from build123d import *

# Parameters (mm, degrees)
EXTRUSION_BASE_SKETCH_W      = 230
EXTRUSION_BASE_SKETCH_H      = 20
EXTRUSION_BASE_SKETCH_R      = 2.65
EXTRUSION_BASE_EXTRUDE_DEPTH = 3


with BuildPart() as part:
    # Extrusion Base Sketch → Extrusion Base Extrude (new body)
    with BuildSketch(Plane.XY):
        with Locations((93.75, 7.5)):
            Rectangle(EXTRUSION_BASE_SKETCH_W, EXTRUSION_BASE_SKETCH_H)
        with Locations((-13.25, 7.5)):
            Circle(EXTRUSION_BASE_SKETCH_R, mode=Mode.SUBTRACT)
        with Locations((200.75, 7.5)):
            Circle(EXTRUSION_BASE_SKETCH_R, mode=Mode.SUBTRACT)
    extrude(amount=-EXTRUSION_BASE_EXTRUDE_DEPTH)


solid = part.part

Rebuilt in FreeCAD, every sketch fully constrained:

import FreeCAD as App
import Part
import Sketcher
from FreeCAD import Vector

doc = App.newDocument("Part")
body = doc.addObject("PartDesign::Body", "Body")

# Sketch on XY plane
sketch1 = body.newObject("Sketcher::SketchObject", "Sketch")
sketch1.AttachmentSupport = (doc.getObject("XY_Plane"), [""])
sketch1.MapMode = "FlatFace"
sketch1.addGeometry(Part.LineSegment(Vector(-21.2, 17.5, 0), Vector(-21.2, -2.5, 0)), False)
sketch1.addGeometry(Part.LineSegment(Vector(-21.2, -2.5, 0), Vector(208.8, -2.5, 0)), False)
sketch1.addGeometry(Part.LineSegment(Vector(208.8, -2.5, 0), Vector(208.8, 17.5, 0)), False)
sketch1.addGeometry(Part.LineSegment(Vector(208.8, 17.5, 0), Vector(-21.2, 17.5, 0)), False)
sketch1.addGeometry(Part.Circle(Vector(-13.2, 7.5, 0), Vector(0, 0, 1), 2.6), False)
sketch1.addGeometry(Part.Circle(Vector(200.8, 7.5, 0), Vector(0, 0, 1), 2.6), False)
sketch1.addConstraint(Sketcher.Constraint("Coincident", 0, 2, 1, 1))
sketch1.addConstraint(Sketcher.Constraint("Coincident", 1, 2, 2, 1))
sketch1.addConstraint(Sketcher.Constraint("Coincident", 2, 2, 3, 1))
sketch1.addConstraint(Sketcher.Constraint("Coincident", 3, 2, 0, 1))
sketch1.addConstraint(Sketcher.Constraint("Vertical", 0))
sketch1.addConstraint(Sketcher.Constraint("Horizontal", 1))
sketch1.addConstraint(Sketcher.Constraint("Vertical", 2))
sketch1.addConstraint(Sketcher.Constraint("Horizontal", 3))
sketch1.addConstraint(Sketcher.Constraint("Equal", 4, 5))
sketch1.addConstraint(Sketcher.Constraint("Horizontal", 4, 3, 5, 3))
sketch1.addConstraint(Sketcher.Constraint("Diameter", 4, 5.3))
sketch1.addConstraint(Sketcher.Constraint("DistanceX", 1, 1, 1, 2, 230.0))
sketch1.addConstraint(Sketcher.Constraint("DistanceY", 0, 2, 0, 1, 20.0))
sketch1.addConstraint(Sketcher.Constraint("DistanceX", 4, 3, 5, 3, 214.0))
sketch1.addConstraint(Sketcher.Constraint("DistanceX", 0, 2, 4, 3, 8.0))
sketch1.addConstraint(Sketcher.Constraint("DistanceY", 0, 2, 4, 3, 10.0))
sketch1.addConstraint(Sketcher.Constraint("DistanceY", -1, 1, 4, 3, 7.5))
sketch1.addConstraint(Sketcher.Constraint("DistanceX", 4, 3, -1, 1, 13.25))
pad1 = body.newObject("PartDesign::Pad", "Pad")
pad1.Profile = sketch1
pad1.Length = 3
pad1.Reversed = True

doc.recompute()
